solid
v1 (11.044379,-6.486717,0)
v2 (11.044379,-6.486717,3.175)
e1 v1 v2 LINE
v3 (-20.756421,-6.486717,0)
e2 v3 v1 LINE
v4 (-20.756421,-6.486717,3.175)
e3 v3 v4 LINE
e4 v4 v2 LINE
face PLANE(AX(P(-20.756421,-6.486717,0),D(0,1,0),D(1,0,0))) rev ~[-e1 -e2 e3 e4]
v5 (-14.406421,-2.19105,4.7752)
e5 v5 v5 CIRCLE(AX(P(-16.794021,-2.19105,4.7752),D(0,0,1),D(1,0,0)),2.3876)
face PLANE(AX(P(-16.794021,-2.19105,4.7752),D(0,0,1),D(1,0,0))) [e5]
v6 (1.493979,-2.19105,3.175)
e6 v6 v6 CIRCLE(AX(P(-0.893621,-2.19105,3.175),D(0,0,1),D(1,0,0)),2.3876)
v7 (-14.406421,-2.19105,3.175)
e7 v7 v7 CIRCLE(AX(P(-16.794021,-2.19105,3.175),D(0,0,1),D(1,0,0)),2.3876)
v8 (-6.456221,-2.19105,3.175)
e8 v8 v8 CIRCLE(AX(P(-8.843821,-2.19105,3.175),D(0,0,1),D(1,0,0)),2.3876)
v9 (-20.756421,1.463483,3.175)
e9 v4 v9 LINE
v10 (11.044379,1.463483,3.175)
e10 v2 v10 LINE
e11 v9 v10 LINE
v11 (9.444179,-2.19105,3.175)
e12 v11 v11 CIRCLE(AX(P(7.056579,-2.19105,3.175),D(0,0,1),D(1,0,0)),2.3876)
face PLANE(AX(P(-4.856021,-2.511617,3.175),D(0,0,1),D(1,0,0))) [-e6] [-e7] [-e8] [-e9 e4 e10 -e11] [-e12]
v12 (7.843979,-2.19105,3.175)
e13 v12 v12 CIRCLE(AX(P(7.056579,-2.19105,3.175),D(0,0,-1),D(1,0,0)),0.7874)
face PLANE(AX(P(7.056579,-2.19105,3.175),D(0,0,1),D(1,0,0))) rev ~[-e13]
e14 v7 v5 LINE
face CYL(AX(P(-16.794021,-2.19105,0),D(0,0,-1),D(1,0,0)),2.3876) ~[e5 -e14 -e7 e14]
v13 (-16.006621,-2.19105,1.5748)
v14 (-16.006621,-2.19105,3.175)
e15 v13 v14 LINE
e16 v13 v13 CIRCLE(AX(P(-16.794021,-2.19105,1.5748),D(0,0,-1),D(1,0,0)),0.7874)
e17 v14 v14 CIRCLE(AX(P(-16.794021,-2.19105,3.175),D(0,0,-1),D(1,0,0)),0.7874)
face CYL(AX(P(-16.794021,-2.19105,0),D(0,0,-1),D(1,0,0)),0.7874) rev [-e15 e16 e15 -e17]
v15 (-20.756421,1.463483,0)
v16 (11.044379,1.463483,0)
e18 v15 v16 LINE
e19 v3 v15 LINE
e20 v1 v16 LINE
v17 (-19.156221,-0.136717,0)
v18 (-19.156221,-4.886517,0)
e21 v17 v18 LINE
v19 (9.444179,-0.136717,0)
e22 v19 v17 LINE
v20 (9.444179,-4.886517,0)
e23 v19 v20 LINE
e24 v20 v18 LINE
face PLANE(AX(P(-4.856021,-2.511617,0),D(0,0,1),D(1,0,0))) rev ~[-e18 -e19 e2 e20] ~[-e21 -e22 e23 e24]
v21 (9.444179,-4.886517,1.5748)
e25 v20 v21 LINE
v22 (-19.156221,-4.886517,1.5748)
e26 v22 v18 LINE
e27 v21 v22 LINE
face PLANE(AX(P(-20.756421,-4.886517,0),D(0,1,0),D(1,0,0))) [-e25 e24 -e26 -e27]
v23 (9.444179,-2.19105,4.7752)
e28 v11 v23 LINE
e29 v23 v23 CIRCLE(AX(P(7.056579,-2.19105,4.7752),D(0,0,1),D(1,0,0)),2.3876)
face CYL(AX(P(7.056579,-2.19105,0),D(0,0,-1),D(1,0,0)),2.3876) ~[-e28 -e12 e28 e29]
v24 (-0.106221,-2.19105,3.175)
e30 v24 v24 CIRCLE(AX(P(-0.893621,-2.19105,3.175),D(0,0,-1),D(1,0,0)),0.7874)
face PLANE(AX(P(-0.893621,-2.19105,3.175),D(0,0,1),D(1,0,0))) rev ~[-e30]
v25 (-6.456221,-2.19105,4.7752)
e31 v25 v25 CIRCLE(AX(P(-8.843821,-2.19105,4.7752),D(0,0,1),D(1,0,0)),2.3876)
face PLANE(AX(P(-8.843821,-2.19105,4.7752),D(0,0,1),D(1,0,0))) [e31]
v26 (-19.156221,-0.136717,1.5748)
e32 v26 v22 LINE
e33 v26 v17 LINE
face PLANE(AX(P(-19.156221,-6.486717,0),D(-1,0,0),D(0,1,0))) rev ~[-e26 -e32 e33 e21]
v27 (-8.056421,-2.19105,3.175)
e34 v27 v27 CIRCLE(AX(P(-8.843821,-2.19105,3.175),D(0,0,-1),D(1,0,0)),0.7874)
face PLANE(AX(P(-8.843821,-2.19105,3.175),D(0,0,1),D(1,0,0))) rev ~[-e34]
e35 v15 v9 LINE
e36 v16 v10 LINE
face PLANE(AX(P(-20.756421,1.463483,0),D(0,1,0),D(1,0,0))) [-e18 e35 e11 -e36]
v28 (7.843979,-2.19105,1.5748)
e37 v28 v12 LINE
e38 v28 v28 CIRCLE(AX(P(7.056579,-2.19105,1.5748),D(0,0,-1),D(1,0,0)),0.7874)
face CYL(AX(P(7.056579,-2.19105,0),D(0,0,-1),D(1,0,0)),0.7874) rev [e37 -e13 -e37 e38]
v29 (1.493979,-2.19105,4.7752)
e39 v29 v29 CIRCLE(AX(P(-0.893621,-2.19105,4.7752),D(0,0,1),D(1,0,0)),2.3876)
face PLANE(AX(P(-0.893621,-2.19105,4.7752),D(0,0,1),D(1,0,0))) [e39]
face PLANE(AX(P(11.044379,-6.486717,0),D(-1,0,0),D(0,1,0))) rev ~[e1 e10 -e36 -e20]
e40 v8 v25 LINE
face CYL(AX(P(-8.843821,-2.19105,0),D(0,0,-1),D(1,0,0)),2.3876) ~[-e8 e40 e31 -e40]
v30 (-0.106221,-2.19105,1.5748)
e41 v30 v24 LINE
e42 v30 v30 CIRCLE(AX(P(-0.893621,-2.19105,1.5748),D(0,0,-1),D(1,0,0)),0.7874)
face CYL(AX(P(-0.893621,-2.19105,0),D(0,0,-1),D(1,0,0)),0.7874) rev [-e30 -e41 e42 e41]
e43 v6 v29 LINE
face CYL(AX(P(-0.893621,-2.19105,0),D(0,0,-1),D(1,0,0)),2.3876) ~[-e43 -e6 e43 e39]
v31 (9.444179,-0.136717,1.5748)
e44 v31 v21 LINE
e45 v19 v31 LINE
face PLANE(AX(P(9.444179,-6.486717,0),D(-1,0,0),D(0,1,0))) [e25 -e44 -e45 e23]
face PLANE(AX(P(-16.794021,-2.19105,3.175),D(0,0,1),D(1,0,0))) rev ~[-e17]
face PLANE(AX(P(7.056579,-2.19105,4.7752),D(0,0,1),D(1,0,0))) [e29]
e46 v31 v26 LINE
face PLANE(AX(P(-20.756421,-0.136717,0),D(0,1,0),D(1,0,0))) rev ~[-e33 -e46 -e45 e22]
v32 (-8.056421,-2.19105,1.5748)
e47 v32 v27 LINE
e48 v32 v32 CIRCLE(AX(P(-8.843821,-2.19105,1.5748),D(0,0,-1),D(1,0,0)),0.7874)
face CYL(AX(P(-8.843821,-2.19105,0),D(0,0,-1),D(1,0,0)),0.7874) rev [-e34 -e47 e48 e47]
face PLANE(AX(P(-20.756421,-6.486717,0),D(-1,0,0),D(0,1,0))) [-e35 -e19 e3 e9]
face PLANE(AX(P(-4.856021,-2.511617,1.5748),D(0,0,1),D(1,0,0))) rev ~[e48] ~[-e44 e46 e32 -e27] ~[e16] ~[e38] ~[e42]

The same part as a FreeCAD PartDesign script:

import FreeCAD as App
import Part
import Sketcher

V = App.Vector
Q = App.Units.Quantity


def faces_at(feature, points):
    """Names of the faces that lie closest to the given points."""
    faces = feature.Shape.Faces
    near = lambda p: min(range(len(faces)), key=lambda i: faces[i].distToShape(Part.Vertex(*p))[0])
    return sorted({f"Face{near(p) + 1}" for p in points})


def add_polygon(sketch, points):
    """Adds a closed chain of lines whose ends are joined by coincident constraints."""
    first, n = sketch.GeometryCount, len(points)
    for a, b in zip(points, points[1:] + points[:1]):
        sketch.addGeometry(Part.LineSegment(App.Vector(*a, 0), App.Vector(*b, 0)), False)
    for i in range(n):
        sketch.addConstraint(Sketcher.Constraint("Coincident", first + i, 2, first + (i + 1) % n, 1))

doc = App.newDocument("Part")
body = doc.addObject("PartDesign::Body", "Body")

sketch1 = doc.addObject("Sketcher::SketchObject", "Sketch")
body.addObject(sketch1)
sketch1.AttachmentSupport = (doc.XY_Plane, [""])
sketch1.MapMode = "FlatFace"
add_polygon(sketch1, [(-20.8, 1.5), (-20.8, -6.5), (11, -6.5), (11, 1.5)])
sketch1.addGeometry(Part.Circle(V(-16.8, -2.2, 0), V(0, 0, 1), 2.4), False)
sketch1.addGeometry(Part.Circle(V(-8.8, -2.2, 0), V(0, 0, 1), 2.4), False)
sketch1.addGeometry(Part.Circle(V(-0.9, -2.2, 0), V(0, 0, 1), 2.4), False)
sketch1.addGeometry(Part.Circle(V(7.1, -2.2, 0), V(0, 0, 1), 2.4), False)
sketch1.addConstraint(Sketcher.Constraint("Vertical", 0))
sketch1.addConstraint(Sketcher.Constraint("Horizontal", 1))
sketch1.addConstraint(Sketcher.Constraint("Vertical", 2))
sketch1.addConstraint(Sketcher.Constraint("Horizontal", 3))
sketch1.addConstraint(Sketcher.Constraint("Equal", 4, 5))
sketch1.addConstraint(Sketcher.Constraint("Equal", 5, 6))
sketch1.addConstraint(Sketcher.Constraint("Equal", 6, 7))
sketch1.addConstraint(Sketcher.Constraint("Horizontal", 4, 3, 5, 3))
sketch1.addConstraint(Sketcher.Constraint("Horizontal", 5, 3, 6, 3))
sketch1.addConstraint(Sketcher.Constraint("Horizontal", 6, 3, 7, 3))
sketch1.addConstraint(Sketcher.Constraint("Diameter", 4, Q("0.188 in")))
sketch1.addConstraint(Sketcher.Constraint("DistanceX", 1, 1, 1, 2, Q("1.252 in")))
sketch1.addConstraint(Sketcher.Constraint("DistanceY", 0, 2, 0, 1, Q("0.313 in")))
sketch1.addConstraint(Sketcher.Constraint("DistanceX", 6, 3, 1, 2, Q("0.47 in")))
sketch1.addConstraint(Sketcher.Constraint("DistanceX", 4, 3, 5, 3, Q("0.313 in")))
sketch1.addConstraint(Sketcher.Constraint("DistanceX", 5, 3, 6, 3, Q("0.313 in")))
sketch1.addConstraint(Sketcher.Constraint("DistanceX", 6, 3, 7, 3, Q("0.313 in")))
sketch1.addConstraint(Sketcher.Constraint("DistanceX", 4, 3, -1, 1, 16.794021))
sketch1.addConstraint(Sketcher.Constraint("DistanceY", 4, 3, -1, 1, 2.19105))
sketch1.addConstraint(Sketcher.Constraint("DistanceY", 0, 2, -1, 1, 6.486717))
pad1 = doc.addObject("PartDesign::Pad", "Pad")
body.addObject(pad1)
pad1.Profile = sketch1
pad1.Length = Q("0.125 in")

sketch2 = doc.addObject("Sketcher::SketchObject", "Sketch001")
body.addObject(sketch2)
sketch2.AttachmentSupport = (doc.XY_Plane, [""])
sketch2.MapMode = "FlatFace"
sketch2.addGeometry(Part.Circle(V(-16.8, -2.2, 0), V(0, 0, 1), 2.4), False)
sketch2.addGeometry(Part.Circle(V(-8.8, -2.2, 0), V(0, 0, 1), 2.4), False)
sketch2.addGeometry(Part.Circle(V(-0.9, -2.2, 0), V(0, 0, 1), 2.4), False)
sketch2.addGeometry(Part.Circle(V(7.1, -2.2, 0), V(0, 0, 1), 2.4), False)
sketch2.addConstraint(Sketcher.Constraint("Equal", 0, 1))
sketch2.addConstraint(Sketcher.Constraint("Equal", 1, 2))
sketch2.addConstraint(Sketcher.Constraint("Equal", 2, 3))
sketch2.addConstraint(Sketcher.Constraint("Horizontal", 0, 3, 1, 3))
sketch2.addConstraint(Sketcher.Constraint("Horizontal", 1, 3, 2, 3))
sketch2.addConstraint(Sketcher.Constraint("Horizontal", 2, 3, 3, 3))
sketch2.addConstraint(Sketcher.Constraint("Diameter", 0, Q("0.188 in")))
sketch2.addConstraint(Sketcher.Constraint("DistanceX", 0, 3, 1, 3, Q("0.313 in")))
sketch2.addConstraint(Sketcher.Constraint("DistanceX", 1, 3, 2, 3, Q("0.313 in")))
sketch2.addConstraint(Sketcher.Constraint("DistanceX", 2, 3, 3, 3, Q("0.313 in")))
sketch2.addConstraint(Sketcher.Constraint("DistanceX", 0, 3, -1, 1, 16.794021))
sketch2.addConstraint(Sketcher.Constraint("DistanceY", 0, 3, -1, 1, 2.19105))
pad2 = doc.addObject("PartDesign::Pad", "Pad001")
body.addObject(pad2)
pad2.Profile = sketch2
pad2.Length = Q("0.188 in")
doc.recompute()

thickness = doc.addObject("PartDesign::Thickness", "Thickness")
body.addObject(thickness)
thickness.Base = (pad2, faces_at(pad2, [(-4.856, -2.512, 0)]))
thickness.Value = Q("0.063 in")
thickness.Reversed = True
thickness.Join = "Intersection"

doc.recompute()
